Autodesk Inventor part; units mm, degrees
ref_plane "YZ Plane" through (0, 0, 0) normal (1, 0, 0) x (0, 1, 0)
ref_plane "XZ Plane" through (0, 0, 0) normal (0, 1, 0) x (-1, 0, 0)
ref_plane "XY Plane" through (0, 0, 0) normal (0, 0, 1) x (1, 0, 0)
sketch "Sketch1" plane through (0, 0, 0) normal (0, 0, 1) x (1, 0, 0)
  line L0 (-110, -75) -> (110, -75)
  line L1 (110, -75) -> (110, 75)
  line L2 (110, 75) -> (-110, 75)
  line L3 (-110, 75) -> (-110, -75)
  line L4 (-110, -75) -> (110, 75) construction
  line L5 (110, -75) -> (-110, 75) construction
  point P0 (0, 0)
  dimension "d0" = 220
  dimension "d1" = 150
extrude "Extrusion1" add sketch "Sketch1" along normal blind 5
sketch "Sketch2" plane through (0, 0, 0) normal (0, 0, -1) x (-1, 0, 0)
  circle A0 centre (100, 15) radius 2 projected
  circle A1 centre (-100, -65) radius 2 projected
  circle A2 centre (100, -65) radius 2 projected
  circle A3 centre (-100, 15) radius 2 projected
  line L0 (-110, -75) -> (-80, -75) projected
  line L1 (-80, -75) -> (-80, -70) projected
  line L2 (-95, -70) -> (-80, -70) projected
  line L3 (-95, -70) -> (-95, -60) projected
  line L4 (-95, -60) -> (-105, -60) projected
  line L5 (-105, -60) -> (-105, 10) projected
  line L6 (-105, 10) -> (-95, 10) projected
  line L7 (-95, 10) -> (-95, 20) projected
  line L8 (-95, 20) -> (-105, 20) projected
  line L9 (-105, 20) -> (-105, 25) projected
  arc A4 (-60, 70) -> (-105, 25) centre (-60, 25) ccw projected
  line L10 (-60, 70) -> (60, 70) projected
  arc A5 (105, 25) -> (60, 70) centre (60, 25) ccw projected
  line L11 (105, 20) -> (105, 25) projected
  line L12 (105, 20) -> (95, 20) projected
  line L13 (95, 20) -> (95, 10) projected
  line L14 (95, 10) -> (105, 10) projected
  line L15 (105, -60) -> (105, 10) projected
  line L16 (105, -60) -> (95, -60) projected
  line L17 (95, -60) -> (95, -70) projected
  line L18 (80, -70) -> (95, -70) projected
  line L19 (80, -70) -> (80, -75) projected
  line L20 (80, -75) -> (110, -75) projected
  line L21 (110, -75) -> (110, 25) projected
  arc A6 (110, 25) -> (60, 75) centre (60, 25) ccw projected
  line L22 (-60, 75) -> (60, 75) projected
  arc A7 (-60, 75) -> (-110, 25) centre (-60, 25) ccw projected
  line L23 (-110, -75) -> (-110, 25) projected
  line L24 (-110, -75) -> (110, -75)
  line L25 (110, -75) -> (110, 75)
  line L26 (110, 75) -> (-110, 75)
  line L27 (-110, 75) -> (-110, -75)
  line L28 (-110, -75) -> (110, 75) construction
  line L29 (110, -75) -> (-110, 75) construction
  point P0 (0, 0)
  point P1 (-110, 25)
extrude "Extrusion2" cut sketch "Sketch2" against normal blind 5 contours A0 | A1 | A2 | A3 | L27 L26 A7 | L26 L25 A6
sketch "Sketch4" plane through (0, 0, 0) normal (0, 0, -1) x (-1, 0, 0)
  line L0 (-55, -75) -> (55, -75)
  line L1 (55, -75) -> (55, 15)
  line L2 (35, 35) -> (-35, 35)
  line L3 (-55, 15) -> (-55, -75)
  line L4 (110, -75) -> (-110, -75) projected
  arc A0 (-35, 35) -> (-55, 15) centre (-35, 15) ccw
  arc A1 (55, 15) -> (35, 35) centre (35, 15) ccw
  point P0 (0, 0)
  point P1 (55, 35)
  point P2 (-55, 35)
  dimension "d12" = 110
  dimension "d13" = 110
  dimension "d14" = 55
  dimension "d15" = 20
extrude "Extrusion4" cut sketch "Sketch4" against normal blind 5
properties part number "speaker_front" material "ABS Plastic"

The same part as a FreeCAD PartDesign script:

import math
import FreeCAD as App
import Part
import Sketcher
from FreeCAD import Vector
Q = App.Units.Quantity


def add_polygon(sketch, points):
    """Adds a closed chain of lines whose ends are joined by coincident constraints."""
    first, n = sketch.GeometryCount, len(points)
    for a, b in zip(points, points[1:] + points[:1]):
        sketch.addGeometry(Part.LineSegment(App.Vector(*a, 0), App.Vector(*b, 0)), False)
    for i in range(n):
        sketch.addConstraint(Sketcher.Constraint("Coincident", first + i, 2, first + (i + 1) % n, 1))

doc = App.newDocument("Part")
params = doc.addObject("Spreadsheet::Sheet", "Params")
for row, (alias, value) in enumerate([
    ("sketch1_width", "220 mm"),
    ("sketch1_height", "150 mm"),
    ("pad1_length", "5 mm"),
    ("sketch2_diameter", "4 mm"),
    ("sketch2_radius", "50 mm"),
    ("pocket1_length", "5 mm"),
    ("sketch3_radius", "20 mm"),
    ("sketch3_width", "110 mm"),
    ("pocket2_length", "5 mm"),
], start=1):
    params.set(f"A{row}", alias)
    params.set(f"B{row}", "=" + value)
    params.setAlias(f"B{row}", alias)

body = doc.addObject("PartDesign::Body", "Body")

sketch1 = body.newObject("Sketcher::SketchObject", "Sketch")
sketch1.AttachmentSupport = (doc.getObject("XY_Plane"), [""])
sketch1.MapMode = "FlatFace"
add_polygon(sketch1, [(-110, 75), (-110, -75), (110, -75), (110, 75)])
sketch1.addConstraint([
    Sketcher.Constraint("Vertical", 0),
    Sketcher.Constraint("Horizontal", 1),
    Sketcher.Constraint("Vertical", 2),
    Sketcher.Constraint("Horizontal", 3),
    Sketcher.Constraint("Symmetric", 0, 2, 2, 2, -1, 1),
    Sketcher.Constraint("DistanceX", 1, 1, 1, 2, Q("220 mm")),
    Sketcher.Constraint("DistanceY", 0, 2, 0, 1, Q("150 mm")),
])
sketch1.setExpression("Constraints[9]", "Params.sketch1_width")
sketch1.setExpression("Constraints[10]", "Params.sketch1_height")
pad1 = body.newObject("PartDesign::Pad", "Pad")
pad1.Profile = sketch1
pad1.setExpression("Length", "Params.pad1_length")

sketch2 = body.newObject("Sketcher::SketchObject", "Sketch001")
sketch2.AttachmentSupport = (doc.getObject("XY_Plane"), [""])
sketch2.MapMode = "FlatFace"
sketch2.addGeometry([
    Part.Circle(Vector(-100, 15, 0), Vector(0, 0, 1), 2),
    Part.Circle(Vector(100, -65, 0), Vector(0, 0, 1), 2),
    Part.Circle(Vector(-100, -65, 0), Vector(0, 0, 1), 2),
    Part.Circle(Vector(100, 15, 0), Vector(0, 0, 1), 2),
    Part.LineSegment(Vector(110, 75, 0), Vector(110, 25, 0)),
    Part.ArcOfCircle(Part.Circle(Vector(60, 25, 0), Vector(0, 0, 1), 50), math.radians(0), math.radians(90)),
    Part.LineSegment(Vector(60, 75, 0), Vector(110, 75, 0)),
    Part.LineSegment(Vector(-110, 75, 0), Vector(-60, 75, 0)),
    Part.ArcOfCircle(Part.Circle(Vector(-60, 25, 0), Vector(0, 0, 1), 50), math.radians(90), math.radians(180)),
    Part.LineSegment(Vector(-110, 25, 0), Vector(-110, 75, 0)),
], False)
sketch2.addConstraint([
    Sketcher.Constraint("Tangent", 4, 2, 5, 1),
    Sketcher.Constraint("Tangent", 5, 2, 6, 1),
    Sketcher.Constraint("Coincident", 6, 2, 4, 1),
    Sketcher.Constraint("Tangent", 7, 2, 8, 1),
    Sketcher.Constraint("Tangent", 8, 2, 9, 1),
    Sketcher.Constraint("Coincident", 9, 2, 7, 1),
    Sketcher.Constraint("Vertical", 4),
    Sketcher.Constraint("Horizontal", 6),
    Sketcher.Constraint("Horizontal", 7),
    Sketcher.Constraint("Vertical", 9),
    Sketcher.Constraint("Equal", 0, 1),
    Sketcher.Constraint("Equal", 1, 2),
    Sketcher.Constraint("Equal", 2, 3),
    Sketcher.Constraint("Equal", 5, 8),
    Sketcher.Constraint("Symmetric", 1, 3, 2, 3, -2),
    Sketcher.Constraint("Symmetric", 0, 3, 3, 3, -2),
    Sketcher.Constraint("Symmetric", 5, 3, 8, 3, -2),
    Sketcher.Constraint("Vertical", 0, 3, 2, 3),
    Sketcher.Constraint("Diameter", 0, Q("4 mm")),
    Sketcher.Constraint("Radius", 5, Q("50 mm")),
    Sketcher.Constraint("DistanceX", 0, 3, -1, 1, Q("100 mm")),
    Sketcher.Constraint("DistanceY", -1, 1, 0, 3, Q("15 mm")),
    Sketcher.Constraint("DistanceY", 1, 3, -1, 1, Q("65 mm")),
    Sketcher.Constraint("DistanceX", -1, 1, 5, 3, Q("60 mm")),
    Sketcher.Constraint("DistanceY", -1, 1, 5, 3, Q("25 mm")),
])
sketch2.setExpression("Constraints[18]", "Params.sketch2_diameter")
sketch2.setExpression("Constraints[19]", "Params.sketch2_radius")
pocket1 = body.newObject("PartDesign::Pocket", "Pocket")
pocket1.Profile = sketch2
pocket1.setExpression("Length", "Params.pocket1_length")
pocket1.Reversed = True

sketch3 = body.newObject("Sketcher::SketchObject", "Sketch002")
sketch3.AttachmentSupport = (doc.getObject("XY_Plane"), [""])
sketch3.MapMode = "FlatFace"
sketch3.addGeometry([
    Part.LineSegment(Vector(55, 15, 0), Vector(55, -75, 0)),
    Part.LineSegment(Vector(55, -75, 0), Vector(-55, -75, 0)),
    Part.LineSegment(Vector(-55, -75, 0), Vector(-55, 15, 0)),
    Part.ArcOfCircle(Part.Circle(Vector(-35, 15, 0), Vector(0, 0, 1), 20), math.radians(90), math.radians(180)),
    Part.LineSegment(Vector(-35, 35, 0), Vector(35, 35, 0)),
    Part.ArcOfCircle(Part.Circle(Vector(35, 15, 0), Vector(0, 0, 1), 20), math.radians(0), math.radians(90)),
], False)
sketch3.addConstraint([
    Sketcher.Constraint("Coincident", 0, 2, 1, 1),
    Sketcher.Constraint("Coincident", 1, 2, 2, 1),
    Sketcher.Constraint("Tangent", 2, 2, 3, 2),
    Sketcher.Constraint("Tangent", 3, 1, 4, 1),
    Sketcher.Constraint("Tangent", 4, 2, 5, 2),
    Sketcher.Constraint("Tangent", 5, 1, 0, 1),
    Sketcher.Constraint("Vertical", 0),
    Sketcher.Constraint("Horizontal", 1),
    Sketcher.Constraint("Vertical", 2),
    Sketcher.Constraint("Horizontal", 4),
    Sketcher.Constraint("Equal", 3, 5),
    Sketcher.Constraint("Radius", 3, Q("20 mm")),
    Sketcher.Constraint("DistanceX", 1, 2, 1, 1, Q("110 mm")),
    Sketcher.Constraint("DistanceX", -1, 1, 0, 2, Q("55 mm")),
    Sketcher.Constraint("DistanceY", 1, 2, 3, 1, Q("110 mm")),
    Sketcher.Constraint("DistanceY", -1, 1, 3, 3, Q("15 mm")),
])
sketch3.setExpression("Constraints[11]", "Params.sketch3_radius")
sketch3.setExpression("Constraints[12]", "Params.sketch3_width")
pocket2 = body.newObject("PartDesign::Pocket", "Pocket001")
pocket2.Profile = sketch3
pocket2.setExpression("Length", "Params.pocket2_length")
pocket2.Reversed = True

doc.recompute()
